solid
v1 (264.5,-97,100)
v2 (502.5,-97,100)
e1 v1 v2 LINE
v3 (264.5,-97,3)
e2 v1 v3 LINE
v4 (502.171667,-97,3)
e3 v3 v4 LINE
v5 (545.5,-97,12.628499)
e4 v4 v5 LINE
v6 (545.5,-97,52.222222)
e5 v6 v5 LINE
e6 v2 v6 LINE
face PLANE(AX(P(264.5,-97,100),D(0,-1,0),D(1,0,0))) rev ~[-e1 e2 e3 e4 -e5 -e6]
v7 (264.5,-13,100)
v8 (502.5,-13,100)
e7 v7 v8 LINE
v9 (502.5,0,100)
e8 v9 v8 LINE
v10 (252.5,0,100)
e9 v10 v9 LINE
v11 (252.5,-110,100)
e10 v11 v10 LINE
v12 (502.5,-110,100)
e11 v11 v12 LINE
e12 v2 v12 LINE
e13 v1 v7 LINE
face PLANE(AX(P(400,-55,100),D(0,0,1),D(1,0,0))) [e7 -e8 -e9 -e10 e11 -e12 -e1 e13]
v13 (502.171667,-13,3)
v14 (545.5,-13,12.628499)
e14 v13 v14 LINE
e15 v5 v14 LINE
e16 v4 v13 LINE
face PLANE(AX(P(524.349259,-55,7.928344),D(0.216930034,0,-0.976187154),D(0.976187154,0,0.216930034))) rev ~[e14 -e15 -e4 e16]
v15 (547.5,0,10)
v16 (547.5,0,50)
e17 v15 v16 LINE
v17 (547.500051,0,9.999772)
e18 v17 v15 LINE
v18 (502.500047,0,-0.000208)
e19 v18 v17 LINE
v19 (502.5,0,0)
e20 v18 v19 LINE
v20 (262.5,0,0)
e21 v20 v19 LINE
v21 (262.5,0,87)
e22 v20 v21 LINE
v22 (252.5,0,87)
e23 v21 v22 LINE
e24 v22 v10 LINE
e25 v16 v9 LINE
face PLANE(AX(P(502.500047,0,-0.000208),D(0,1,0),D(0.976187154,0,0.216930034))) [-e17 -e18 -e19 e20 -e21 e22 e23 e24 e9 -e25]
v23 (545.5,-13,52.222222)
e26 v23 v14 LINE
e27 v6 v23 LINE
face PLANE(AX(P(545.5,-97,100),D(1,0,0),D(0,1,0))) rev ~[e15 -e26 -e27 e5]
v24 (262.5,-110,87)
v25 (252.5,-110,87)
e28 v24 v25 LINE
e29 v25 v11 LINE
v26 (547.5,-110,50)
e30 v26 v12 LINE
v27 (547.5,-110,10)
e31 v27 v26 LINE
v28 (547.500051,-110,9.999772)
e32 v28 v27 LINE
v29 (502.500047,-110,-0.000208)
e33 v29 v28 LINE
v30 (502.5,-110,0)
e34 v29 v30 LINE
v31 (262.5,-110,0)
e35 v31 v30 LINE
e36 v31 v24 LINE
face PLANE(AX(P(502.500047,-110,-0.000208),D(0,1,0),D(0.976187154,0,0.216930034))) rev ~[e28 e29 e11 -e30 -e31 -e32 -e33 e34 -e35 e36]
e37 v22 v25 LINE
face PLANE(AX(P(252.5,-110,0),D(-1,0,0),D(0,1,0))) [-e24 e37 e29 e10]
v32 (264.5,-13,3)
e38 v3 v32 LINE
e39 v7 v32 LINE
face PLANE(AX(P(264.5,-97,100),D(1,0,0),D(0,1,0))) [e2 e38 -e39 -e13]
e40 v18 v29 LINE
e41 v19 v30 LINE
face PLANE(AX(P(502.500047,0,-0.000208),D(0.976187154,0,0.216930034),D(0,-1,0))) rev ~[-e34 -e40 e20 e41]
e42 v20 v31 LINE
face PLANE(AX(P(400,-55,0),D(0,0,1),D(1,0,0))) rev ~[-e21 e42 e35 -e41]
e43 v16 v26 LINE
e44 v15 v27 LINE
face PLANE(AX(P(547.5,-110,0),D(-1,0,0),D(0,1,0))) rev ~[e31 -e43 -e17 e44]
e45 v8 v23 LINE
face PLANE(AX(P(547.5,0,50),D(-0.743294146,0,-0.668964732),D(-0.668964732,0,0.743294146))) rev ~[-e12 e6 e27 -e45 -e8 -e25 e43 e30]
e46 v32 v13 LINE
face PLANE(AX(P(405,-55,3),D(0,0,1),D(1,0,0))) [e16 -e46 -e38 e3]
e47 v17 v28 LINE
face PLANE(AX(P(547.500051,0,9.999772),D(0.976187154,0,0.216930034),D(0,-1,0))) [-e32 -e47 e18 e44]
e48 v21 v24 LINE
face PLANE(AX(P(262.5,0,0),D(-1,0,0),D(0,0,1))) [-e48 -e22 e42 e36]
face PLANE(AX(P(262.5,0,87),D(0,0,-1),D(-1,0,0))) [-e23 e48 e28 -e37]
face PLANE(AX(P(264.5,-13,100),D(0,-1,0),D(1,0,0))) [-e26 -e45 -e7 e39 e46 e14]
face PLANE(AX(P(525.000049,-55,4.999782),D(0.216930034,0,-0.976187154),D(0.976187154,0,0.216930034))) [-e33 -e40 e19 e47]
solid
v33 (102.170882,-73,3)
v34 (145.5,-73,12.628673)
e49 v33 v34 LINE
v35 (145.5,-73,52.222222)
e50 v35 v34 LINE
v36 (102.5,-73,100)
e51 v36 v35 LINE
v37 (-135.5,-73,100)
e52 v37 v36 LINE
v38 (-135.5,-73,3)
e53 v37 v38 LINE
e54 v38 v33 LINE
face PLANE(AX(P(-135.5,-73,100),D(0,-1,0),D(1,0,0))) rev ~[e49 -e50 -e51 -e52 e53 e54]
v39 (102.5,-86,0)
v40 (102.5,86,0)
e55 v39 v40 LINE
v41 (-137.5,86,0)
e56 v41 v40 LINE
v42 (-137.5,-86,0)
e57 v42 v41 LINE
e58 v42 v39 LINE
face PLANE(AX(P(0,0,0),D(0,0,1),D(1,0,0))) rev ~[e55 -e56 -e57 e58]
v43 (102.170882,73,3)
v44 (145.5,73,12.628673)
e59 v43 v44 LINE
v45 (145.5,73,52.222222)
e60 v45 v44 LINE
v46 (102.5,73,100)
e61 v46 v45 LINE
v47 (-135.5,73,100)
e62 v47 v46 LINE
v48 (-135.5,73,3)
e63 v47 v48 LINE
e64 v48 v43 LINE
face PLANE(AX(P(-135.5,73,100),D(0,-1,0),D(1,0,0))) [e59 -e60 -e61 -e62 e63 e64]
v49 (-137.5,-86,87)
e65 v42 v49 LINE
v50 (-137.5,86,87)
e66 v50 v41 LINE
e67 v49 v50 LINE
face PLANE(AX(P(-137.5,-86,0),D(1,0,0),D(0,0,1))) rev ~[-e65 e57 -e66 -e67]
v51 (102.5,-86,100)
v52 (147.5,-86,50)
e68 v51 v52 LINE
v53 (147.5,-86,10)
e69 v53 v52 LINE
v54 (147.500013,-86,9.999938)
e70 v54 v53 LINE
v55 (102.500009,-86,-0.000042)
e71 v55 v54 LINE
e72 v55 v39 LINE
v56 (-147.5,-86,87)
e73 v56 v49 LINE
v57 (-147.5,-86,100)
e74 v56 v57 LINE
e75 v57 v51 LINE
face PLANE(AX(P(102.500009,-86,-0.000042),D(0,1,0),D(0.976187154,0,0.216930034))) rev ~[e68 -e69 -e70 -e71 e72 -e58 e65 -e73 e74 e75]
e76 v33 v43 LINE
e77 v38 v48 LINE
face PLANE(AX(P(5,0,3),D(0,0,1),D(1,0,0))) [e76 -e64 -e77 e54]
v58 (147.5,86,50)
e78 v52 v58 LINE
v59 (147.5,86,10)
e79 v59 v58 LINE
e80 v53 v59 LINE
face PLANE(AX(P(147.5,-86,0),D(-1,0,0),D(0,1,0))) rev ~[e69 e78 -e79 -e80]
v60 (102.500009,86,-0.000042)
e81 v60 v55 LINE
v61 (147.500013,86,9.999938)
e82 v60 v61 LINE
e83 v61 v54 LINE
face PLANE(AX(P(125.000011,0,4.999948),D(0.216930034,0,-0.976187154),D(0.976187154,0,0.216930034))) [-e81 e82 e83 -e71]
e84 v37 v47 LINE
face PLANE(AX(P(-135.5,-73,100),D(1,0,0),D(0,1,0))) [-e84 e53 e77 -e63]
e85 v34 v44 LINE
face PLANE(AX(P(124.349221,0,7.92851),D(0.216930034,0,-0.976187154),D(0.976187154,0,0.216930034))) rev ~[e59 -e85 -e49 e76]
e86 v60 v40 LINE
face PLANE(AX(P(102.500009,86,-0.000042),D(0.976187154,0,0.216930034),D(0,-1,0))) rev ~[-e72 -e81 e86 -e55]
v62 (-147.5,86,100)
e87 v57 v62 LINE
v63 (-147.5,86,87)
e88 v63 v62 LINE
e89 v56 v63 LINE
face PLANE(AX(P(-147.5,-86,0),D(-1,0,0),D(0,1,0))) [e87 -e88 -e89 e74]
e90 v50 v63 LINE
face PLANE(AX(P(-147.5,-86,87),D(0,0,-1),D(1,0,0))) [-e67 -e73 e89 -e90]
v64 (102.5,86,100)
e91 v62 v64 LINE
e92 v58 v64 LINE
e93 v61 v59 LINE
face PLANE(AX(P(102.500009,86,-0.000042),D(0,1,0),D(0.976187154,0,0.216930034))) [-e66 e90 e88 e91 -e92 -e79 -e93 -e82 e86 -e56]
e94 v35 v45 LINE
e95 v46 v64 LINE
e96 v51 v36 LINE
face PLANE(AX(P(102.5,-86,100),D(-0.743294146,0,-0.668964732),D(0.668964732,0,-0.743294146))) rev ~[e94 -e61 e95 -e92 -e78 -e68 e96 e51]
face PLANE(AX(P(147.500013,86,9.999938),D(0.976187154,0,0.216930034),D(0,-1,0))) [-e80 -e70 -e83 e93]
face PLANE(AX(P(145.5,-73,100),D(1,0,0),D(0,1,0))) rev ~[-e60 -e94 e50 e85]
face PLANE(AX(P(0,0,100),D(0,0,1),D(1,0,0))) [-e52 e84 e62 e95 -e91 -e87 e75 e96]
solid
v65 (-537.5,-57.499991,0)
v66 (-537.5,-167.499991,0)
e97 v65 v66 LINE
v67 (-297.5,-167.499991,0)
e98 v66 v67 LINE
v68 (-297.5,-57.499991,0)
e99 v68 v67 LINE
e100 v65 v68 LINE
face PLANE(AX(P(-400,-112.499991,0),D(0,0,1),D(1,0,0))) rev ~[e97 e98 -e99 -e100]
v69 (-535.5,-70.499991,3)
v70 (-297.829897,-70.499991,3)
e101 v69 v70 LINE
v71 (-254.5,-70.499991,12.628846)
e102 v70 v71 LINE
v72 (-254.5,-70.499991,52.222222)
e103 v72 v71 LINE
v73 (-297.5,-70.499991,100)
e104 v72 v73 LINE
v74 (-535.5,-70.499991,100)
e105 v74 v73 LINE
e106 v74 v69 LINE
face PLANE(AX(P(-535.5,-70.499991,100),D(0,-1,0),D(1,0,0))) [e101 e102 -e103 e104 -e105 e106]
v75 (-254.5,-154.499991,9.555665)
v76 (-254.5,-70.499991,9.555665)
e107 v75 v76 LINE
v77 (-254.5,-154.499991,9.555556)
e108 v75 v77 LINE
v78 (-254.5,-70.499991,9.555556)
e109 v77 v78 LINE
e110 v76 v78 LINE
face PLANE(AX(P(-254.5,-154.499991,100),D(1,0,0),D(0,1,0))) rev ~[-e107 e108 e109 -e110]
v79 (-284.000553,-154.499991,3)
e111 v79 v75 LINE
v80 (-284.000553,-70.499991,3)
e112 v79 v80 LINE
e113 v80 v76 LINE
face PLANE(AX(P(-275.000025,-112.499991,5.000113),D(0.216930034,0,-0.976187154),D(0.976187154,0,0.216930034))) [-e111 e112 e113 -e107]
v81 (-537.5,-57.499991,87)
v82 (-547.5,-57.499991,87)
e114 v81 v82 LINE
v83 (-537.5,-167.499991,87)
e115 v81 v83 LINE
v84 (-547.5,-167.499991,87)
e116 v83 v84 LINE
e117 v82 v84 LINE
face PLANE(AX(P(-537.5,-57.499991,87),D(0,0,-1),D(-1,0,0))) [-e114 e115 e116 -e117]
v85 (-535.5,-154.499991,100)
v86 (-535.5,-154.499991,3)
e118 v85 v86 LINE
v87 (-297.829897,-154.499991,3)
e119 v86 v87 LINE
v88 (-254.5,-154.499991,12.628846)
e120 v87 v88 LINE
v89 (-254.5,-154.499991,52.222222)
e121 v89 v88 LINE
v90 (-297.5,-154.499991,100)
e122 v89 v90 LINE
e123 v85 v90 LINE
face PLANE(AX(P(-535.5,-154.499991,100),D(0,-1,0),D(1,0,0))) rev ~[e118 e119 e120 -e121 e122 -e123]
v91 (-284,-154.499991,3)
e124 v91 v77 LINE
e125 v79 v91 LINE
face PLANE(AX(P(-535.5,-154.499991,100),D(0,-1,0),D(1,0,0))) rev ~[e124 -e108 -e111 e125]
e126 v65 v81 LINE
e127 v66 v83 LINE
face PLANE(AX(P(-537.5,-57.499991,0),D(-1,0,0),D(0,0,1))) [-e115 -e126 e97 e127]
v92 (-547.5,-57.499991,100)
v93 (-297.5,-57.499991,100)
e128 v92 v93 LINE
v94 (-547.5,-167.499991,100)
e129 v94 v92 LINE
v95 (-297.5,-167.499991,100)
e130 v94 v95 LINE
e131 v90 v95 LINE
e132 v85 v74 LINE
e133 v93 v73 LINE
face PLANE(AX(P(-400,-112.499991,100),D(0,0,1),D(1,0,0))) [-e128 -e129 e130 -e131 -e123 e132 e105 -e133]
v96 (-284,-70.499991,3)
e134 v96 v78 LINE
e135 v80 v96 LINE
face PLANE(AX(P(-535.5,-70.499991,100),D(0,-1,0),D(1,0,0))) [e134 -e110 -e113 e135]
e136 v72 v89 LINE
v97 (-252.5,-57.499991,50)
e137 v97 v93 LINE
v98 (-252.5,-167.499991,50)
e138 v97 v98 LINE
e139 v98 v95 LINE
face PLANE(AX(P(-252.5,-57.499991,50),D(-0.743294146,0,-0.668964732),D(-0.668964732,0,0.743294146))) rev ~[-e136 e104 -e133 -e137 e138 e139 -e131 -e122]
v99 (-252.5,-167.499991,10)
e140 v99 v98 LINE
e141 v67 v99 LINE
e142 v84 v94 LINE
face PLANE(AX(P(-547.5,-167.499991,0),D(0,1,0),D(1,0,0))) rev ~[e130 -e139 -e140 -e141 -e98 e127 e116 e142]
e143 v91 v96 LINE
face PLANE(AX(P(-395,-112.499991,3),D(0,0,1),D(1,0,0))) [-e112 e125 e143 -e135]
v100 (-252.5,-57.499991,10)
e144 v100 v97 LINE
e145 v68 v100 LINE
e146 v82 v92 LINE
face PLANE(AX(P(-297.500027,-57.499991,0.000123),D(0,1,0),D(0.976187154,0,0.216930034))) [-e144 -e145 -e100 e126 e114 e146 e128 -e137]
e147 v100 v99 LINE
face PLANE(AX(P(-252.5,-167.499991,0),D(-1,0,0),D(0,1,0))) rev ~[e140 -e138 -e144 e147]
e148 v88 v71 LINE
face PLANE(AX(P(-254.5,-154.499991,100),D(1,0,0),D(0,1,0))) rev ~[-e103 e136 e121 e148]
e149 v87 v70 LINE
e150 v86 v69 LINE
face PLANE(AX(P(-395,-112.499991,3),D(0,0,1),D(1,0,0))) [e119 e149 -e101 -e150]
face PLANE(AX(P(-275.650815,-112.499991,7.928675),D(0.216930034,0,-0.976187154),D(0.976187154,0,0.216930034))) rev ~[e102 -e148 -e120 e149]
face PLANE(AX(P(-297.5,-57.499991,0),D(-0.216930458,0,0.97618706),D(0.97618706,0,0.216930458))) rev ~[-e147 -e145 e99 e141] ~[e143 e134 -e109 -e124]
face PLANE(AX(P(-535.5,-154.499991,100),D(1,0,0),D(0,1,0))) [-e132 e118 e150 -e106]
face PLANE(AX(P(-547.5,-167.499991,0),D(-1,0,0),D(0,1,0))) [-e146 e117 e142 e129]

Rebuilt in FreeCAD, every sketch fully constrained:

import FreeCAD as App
import Part
import Sketcher
Q = App.Units.Quantity

doc = App.newDocument("Part")
body = doc.addObject("PartDesign::Body", "Body")

sketch1 = body.newObject("Sketcher::SketchObject", "Sketch")
sketch1.AttachmentSupport = (doc.getObject("XY_Plane"), [""])
sketch1.MapMode = "FlatFace"
sketch1.addGeometry(Part.LineSegment(App.Vector(-148, 86, 0), App.Vector(-148, -86, 0)), False)
sketch1.addGeometry(Part.LineSegment(App.Vector(-148, -86, 0), App.Vector(148, -86, 0)), False)
sketch1.addGeometry(Part.LineSegment(App.Vector(148, -86, 0), App.Vector(148, 86, 0)), False)
sketch1.addGeometry(Part.LineSegment(App.Vector(148, 86, 0), App.Vector(-148, 86, 0)), False)
sketch1.addConstraint(Sketcher.Constraint("Coincident", 0, 2, 1, 1))
sketch1.addConstraint(Sketcher.Constraint("Coincident", 1, 2, 2, 1))
sketch1.addConstraint(Sketcher.Constraint("Coincident", 2, 2, 3, 1))
sketch1.addConstraint(Sketcher.Constraint("Coincident", 3, 2, 0, 1))
sketch1.addConstraint(Sketcher.Constraint("Vertical", 0))
sketch1.addConstraint(Sketcher.Constraint("Horizontal", 1))
sketch1.addConstraint(Sketcher.Constraint("Vertical", 2))
sketch1.addConstraint(Sketcher.Constraint("Horizontal", 3))
sketch1.addConstraint(Sketcher.Constraint("Symmetric", 0, 2, 2, 2, -1, 1))
sketch1.addConstraint(Sketcher.Constraint("DistanceX", 1, 1, 1, 2, Q("295 mm")))
sketch1.addConstraint(Sketcher.Constraint("DistanceY", 0, 2, 0, 1, Q("172 mm")))
pad1 = body.newObject("PartDesign::Pad", "Pad")
pad1.Profile = sketch1
pad1.Length = 100

sketch2 = body.newObject("Sketcher::SketchObject", "Sketch001")
sketch2.AttachmentSupport = (doc.getObject("XY_Plane"), [""])
sketch2.MapMode = "FlatFace"
sketch2.AttachmentOffset = App.Placement(App.Vector(0, 0, 100), App.Rotation())
sketch2.addGeometry(Part.LineSegment(App.Vector(-136, 73, 0), App.Vector(-136, -73, 0)), False)
sketch2.addGeometry(Part.LineSegment(App.Vector(-136, -73, 0), App.Vector(146, -73, 0)), False)
sketch2.addGeometry(Part.LineSegment(App.Vector(146, -73, 0), App.Vector(146, 73, 0)), False)
sketch2.addGeometry(Part.LineSegment(App.Vector(146, 73, 0), App.Vector(-136, 73, 0)), False)
sketch2.addConstraint(Sketcher.Constraint("Coincident", 0, 2, 1, 1))
sketch2.addConstraint(Sketcher.Constraint("Coincident", 1, 2, 2, 1))
sketch2.addConstraint(Sketcher.Constraint("Coincident", 2, 2, 3, 1))
sketch2.addConstraint(Sketcher.Constraint("Coincident", 3, 2, 0, 1))
sketch2.addConstraint(Sketcher.Constraint("Vertical", 0))
sketch2.addConstraint(Sketcher.Constraint("Horizontal", 1))
sketch2.addConstraint(Sketcher.Constraint("Vertical", 2))
sketch2.addConstraint(Sketcher.Constraint("Horizontal", 3))
sketch2.addConstraint(Sketcher.Constraint("DistanceX", 1, 1, 1, 2, Q("281 mm")))
sketch2.addConstraint(Sketcher.Constraint("DistanceY", 0, 2, 0, 1, Q("146 mm")))
sketch2.addConstraint(Sketcher.Constraint("DistanceY", 0, 2, -1, 1, Q("73 mm")))
sketch2.addConstraint(Sketcher.Constraint("DistanceX", 0, 2, -1, 1, Q("135.5 mm")))
pocket1 = body.newObject("PartDesign::Pocket", "Pocket")
pocket1.Profile = sketch2
pocket1.Length = 97

sketch3 = body.newObject("Sketcher::SketchObject", "Sketch002")
sketch3.AttachmentSupport = (doc.getObject("XZ_Plane"), [""])
sketch3.MapMode = "FlatFace"
sketch3.AttachmentOffset = App.Placement(App.Vector(0, 0, 86), App.Rotation())
sketch3.addGeometry(Part.LineSegment(App.Vector(-148, 87, 0), App.Vector(-148, 0, 0)), False)
sketch3.addGeometry(Part.LineSegment(App.Vector(-148, 0, 0), App.Vector(-138, 0, 0)), False)
sketch3.addGeometry(Part.LineSegment(App.Vector(-138, 0, 0), App.Vector(-138, 87, 0)), False)
sketch3.addGeometry(Part.LineSegment(App.Vector(-138, 87, 0), App.Vector(-148, 87, 0)), False)
sketch3.addGeometry(Part.LineSegment(App.Vector(102, 100, 0), App.Vector(148, 50, 0)), False)
sketch3.addGeometry(Part.LineSegment(App.Vector(148, 50, 0), App.Vector(148, 100, 0)), False)
sketch3.addGeometry(Part.LineSegment(App.Vector(148, 100, 0), App.Vector(102, 100, 0)), False)
sketch3.addGeometry(Part.LineSegment(App.Vector(148, 0, 0), App.Vector(148, 10, 0)), False)
sketch3.addGeometry(Part.LineSegment(App.Vector(148, 10, 0), App.Vector(102, 0, 0)), False)
sketch3.addGeometry(Part.LineSegment(App.Vector(102, 0, 0), App.Vector(148, 0, 0)), False)
sketch3.addConstraint(Sketcher.Constraint("Coincident", 0, 2, 1, 1))
sketch3.addConstraint(Sketcher.Constraint("Coincident", 1, 2, 2, 1))
sketch3.addConstraint(Sketcher.Constraint("Coincident", 2, 2, 3, 1))
sketch3.addConstraint(Sketcher.Constraint("Coincident", 3, 2, 0, 1))
sketch3.addConstraint(Sketcher.Constraint("Coincident", 4, 2, 5, 1))
sketch3.addConstraint(Sketcher.Constraint("Coincident", 5, 2, 6, 1))
sketch3.addConstraint(Sketcher.Constraint("Coincident", 6, 2, 4, 1))
sketch3.addConstraint(Sketcher.Constraint("Coincident", 7, 2, 8, 1))
sketch3.addConstraint(Sketcher.Constraint("Coincident", 8, 2, 9, 1))
sketch3.addConstraint(Sketcher.Constraint("Coincident", 9, 2, 7, 1))
sketch3.addConstraint(Sketcher.Constraint("Vertical", 0))
sketch3.addConstraint(Sketcher.Constraint("Horizontal", 1))
sketch3.addConstraint(Sketcher.Constraint("Vertical", 2))
sketch3.addConstraint(Sketcher.Constraint("Horizontal", 3))
sketch3.addConstraint(Sketcher.Constraint("Vertical", 5))
sketch3.addConstraint(Sketcher.Constraint("Horizontal", 6))
sketch3.addConstraint(Sketcher.Constraint("Vertical", 7))
sketch3.addConstraint(Sketcher.Constraint("Horizontal", 9))
sketch3.addConstraint(Sketcher.Constraint("Symmetric", 0, 2, 9, 2, -1, 1))
sketch3.addConstraint(Sketcher.Constraint("PointOnObject", 0, 2, -1))
sketch3.addConstraint(Sketcher.Constraint("Vertical", 5, 2, 7, 2))
sketch3.addConstraint(Sketcher.Constraint("Vertical", 6, 2, 8, 2))
sketch3.addConstraint(Sketcher.Constraint("Equal", 3, 7))
sketch3.addConstraint(Sketcher.Constraint("DistanceX", 1, 1, 1, 2, Q("10 mm")))
sketch3.addConstraint(Sketcher.Constraint("DistanceX", 6, 2, 6, 1, Q("45 mm")))
sketch3.addConstraint(Sketcher.Constraint("DistanceY", 0, 2, 0, 1, Q("87 mm")))
sketch3.addConstraint(Sketcher.Constraint("DistanceY", 5, 1, 5, 2, Q("50 mm")))
sketch3.addConstraint(Sketcher.Constraint("DistanceY", -1, 1, 4, 2, Q("50 mm")))
sketch3.addConstraint(Sketcher.Constraint("DistanceX", 2, 2, 4, 2, Q("285 mm")))
pocket2 = body.newObject("PartDesign::Pocket", "Pocket001")
pocket2.Profile = sketch3
pocket2.Type = "ThroughAll"

sketch4 = body.newObject("Sketcher::SketchObject", "Sketch003")
sketch4.Placement = App.Placement(App.Vector(4.823529, 0, -21.705882), App.Rotation(App.Vector(0.976187154, 0, 0.216930034), App.Vector(0, -0.999999999, 0), App.Vector(0.216930034, 0, -0.976187154), "ZXY"))
sketch4.addGeometry(Part.LineSegment(App.Vector(100, 86, 0), App.Vector(100, -86, 0)), False)
sketch4.addGeometry(Part.LineSegment(App.Vector(100, -86, 0), App.Vector(146, -86, 0)), False)
sketch4.addGeometry(Part.LineSegment(App.Vector(146, -86, 0), App.Vector(146, 86, 0)), False)
sketch4.addGeometry(Part.LineSegment(App.Vector(146, 86, 0), App.Vector(100, 86, 0)), False)
sketch4.addConstraint(Sketcher.Constraint("Coincident", 0, 2, 1, 1))
sketch4.addConstraint(Sketcher.Constraint("Coincident", 1, 2, 2, 1))
sketch4.addConstraint(Sketcher.Constraint("Coincident", 2, 2, 3, 1))
sketch4.addConstraint(Sketcher.Constraint("Coincident", 3, 2, 0, 1))
sketch4.addConstraint(Sketcher.Constraint("Vertical", 0))
sketch4.addConstraint(Sketcher.Constraint("Horizontal", 1))
sketch4.addConstraint(Sketcher.Constraint("Vertical", 2))
sketch4.addConstraint(Sketcher.Constraint("Horizontal", 3))
sketch4.addConstraint(Sketcher.Constraint("DistanceY", 0, 2, 0, 1, Q("172 mm")))
sketch4.addConstraint(Sketcher.Constraint("DistanceY", 0, 2, -1, 1, Q("86 mm")))
sketch4.addConstraint(Sketcher.Constraint("DistanceX", 1, 1, 1, 2, Q("46.097722 mm")))
sketch4.addConstraint(Sketcher.Constraint("DistanceX", -1, 1, 0, 2, Q("100.059174 mm")))
pad2 = body.newObject("PartDesign::Pad", "Pad001")
pad2.Profile = sketch4
pad2.Length = 3
pad2.Reversed = True
body2 = doc.addObject("PartDesign::Body", "Body001")
body2.AllowCompound = True

sketch5 = body2.newObject("Sketcher::SketchObject", "Sketch004")
sketch5.AttachmentSupport = (doc.getObject("XY_Plane001"), [""])
sketch5.MapMode = "FlatFace"
sketch5.addGeometry(Part.LineSegment(App.Vector(252, 0, 0), App.Vector(252, -110, 0)), False)
sketch5.addGeometry(Part.LineSegment(App.Vector(252, -110, 0), App.Vector(548, -110, 0)), False)
sketch5.addGeometry(Part.LineSegment(App.Vector(548, -110, 0), App.Vector(548, 0, 0)), False)
sketch5.addGeometry(Part.LineSegment(App.Vector(548, 0, 0), App.Vector(252, 0, 0)), False)
sketch5.addGeometry(Part.LineSegment(App.Vector(-548, -57, 0), App.Vector(-548, -167, 0)), False)
sketch5.addGeometry(Part.LineSegment(App.Vector(-548, -167, 0), App.Vector(-252, -167, 0)), False)
sketch5.addGeometry(Part.LineSegment(App.Vector(-252, -167, 0), App.Vector(-252, -57, 0)), False)
sketch5.addGeometry(Part.LineSegment(App.Vector(-252, -57, 0), App.Vector(-548, -57, 0)), False)
sketch5.addConstraint(Sketcher.Constraint("Coincident", 0, 2, 1, 1))
sketch5.addConstraint(Sketcher.Constraint("Coincident", 1, 2, 2, 1))
sketch5.addConstraint(Sketcher.Constraint("Coincident", 2, 2, 3, 1))
sketch5.addConstraint(Sketcher.Constraint("Coincident", 3, 2, 0, 1))
sketch5.addConstraint(Sketcher.Constraint("Coincident", 4, 2, 5, 1))
sketch5.addConstraint(Sketcher.Constraint("Coincident", 5, 2, 6, 1))
sketch5.addConstraint(Sketcher.Constraint("Coincident", 6, 2, 7, 1))
sketch5.addConstraint(Sketcher.Constraint("Coincident", 7, 2, 4, 1))
sketch5.addConstraint(Sketcher.Constraint("Vertical", 0))
sketch5.addConstraint(Sketcher.Constraint("Horizontal", 1))
sketch5.addConstraint(Sketcher.Constraint("Vertical", 2))
sketch5.addConstraint(Sketcher.Constraint("Horizontal", 3))
sketch5.addConstraint(Sketcher.Constraint("Vertical", 4))
sketch5.addConstraint(Sketcher.Constraint("Horizontal", 5))
sketch5.addConstraint(Sketcher.Constraint("Vertical", 6))
sketch5.addConstraint(Sketcher.Constraint("Horizontal", 7))
sketch5.addConstraint(Sketcher.Constraint("PointOnObject", 2, 2, -1))
sketch5.addConstraint(Sketcher.Constraint("Equal", 3, 5))
sketch5.addConstraint(Sketcher.Constraint("Equal", 2, 4))
sketch5.addConstraint(Sketcher.Constraint("DistanceX", 1, 1, 1, 2, Q("295 mm")))
sketch5.addConstraint(Sketcher.Constraint("DistanceY", 0, 2, 0, 1, Q("110 mm")))
sketch5.addConstraint(Sketcher.Constraint("DistanceX", 4, 2, 0, 2, Q("800 mm")))
sketch5.addConstraint(Sketcher.Constraint("DistanceX", -1, 1, 0, 2, Q("252.5 mm")))
sketch5.addConstraint(Sketcher.Constraint("DistanceY", 4, 2, -1, 1, Q("167.499991 mm")))
pad3 = body2.newObject("PartDesign::Pad", "Pad002")
pad3.Profile = sketch5
pad3.Length = 100

sketch6 = body2.newObject("Sketcher::SketchObject", "Sketch005")
sketch6.AttachmentSupport = (doc.getObject("XY_Plane001"), [""])
sketch6.MapMode = "FlatFace"
sketch6.AttachmentOffset = App.Placement(App.Vector(0, 0, 100), App.Rotation())
sketch6.addGeometry(Part.LineSegment(App.Vector(264, -13, 0), App.Vector(264, -97, 0)), False)
sketch6.addGeometry(Part.LineSegment(App.Vector(264, -97, 0), App.Vector(546, -97, 0)), False)
sketch6.addGeometry(Part.LineSegment(App.Vector(546, -97, 0), App.Vector(546, -13, 0)), False)
sketch6.addGeometry(Part.LineSegment(App.Vector(546, -13, 0), App.Vector(264, -13, 0)), False)
sketch6.addConstraint(Sketcher.Constraint("Coincident", 0, 2, 1, 1))
sketch6.addConstraint(Sketcher.Constraint("Coincident", 1, 2, 2, 1))
sketch6.addConstraint(Sketcher.Constraint("Coincident", 2, 2, 3, 1))
sketch6.addConstraint(Sketcher.Constraint("Coincident", 3, 2, 0, 1))
sketch6.addConstraint(Sketcher.Constraint("Vertical", 0))
sketch6.addConstraint(Sketcher.Constraint("Horizontal", 1))
sketch6.addConstraint(Sketcher.Constraint("Vertical", 2))
sketch6.addConstraint(Sketcher.Constraint("Horizontal", 3))
sketch6.addConstraint(Sketcher.Constraint("DistanceX", 1, 1, 1, 2, Q("281 mm")))
sketch6.addConstraint(Sketcher.Constraint("DistanceY", 0, 2, 0, 1, Q("84 mm")))
sketch6.addConstraint(Sketcher.Constraint("DistanceY", 0, 2, -1, 1, Q("97 mm")))
sketch6.addConstraint(Sketcher.Constraint("DistanceX", -1, 1, 0, 2, Q("264.5 mm")))
pocket3 = body2.newObject("PartDesign::Pocket", "Pocket002")
pocket3.Profile = sketch6
pocket3.Length = 97

sketch7 = body2.newObject("Sketcher::SketchObject", "Sketch006")
sketch7.AttachmentSupport = (doc.getObject("XZ_Plane001"), [""])
sketch7.MapMode = "FlatFace"
sketch7.addGeometry(Part.LineSegment(App.Vector(548, 100, 0), App.Vector(548, 50, 0)), False)
sketch7.addGeometry(Part.LineSegment(App.Vector(548, 50, 0), App.Vector(502, 100, 0)), False)
sketch7.addGeometry(Part.LineSegment(App.Vector(502, 100, 0), App.Vector(548, 100, 0)), False)
sketch7.addGeometry(Part.LineSegment(App.Vector(502, 0, 0), App.Vector(548, 10, 0)), False)
sketch7.addGeometry(Part.LineSegment(App.Vector(548, 10, 0), App.Vector(548, 0, 0)), False)
sketch7.addGeometry(Part.LineSegment(App.Vector(548, 0, 0), App.Vector(502, 0, 0)), False)
sketch7.addGeometry(Part.LineSegment(App.Vector(262, 87, 0), App.Vector(262, 0, 0)), False)
sketch7.addGeometry(Part.LineSegment(App.Vector(262, 0, 0), App.Vector(252, 0, 0)), False)
sketch7.addGeometry(Part.LineSegment(App.Vector(252, 0, 0), App.Vector(252, 87, 0)), False)
sketch7.addGeometry(Part.LineSegment(App.Vector(252, 87, 0), App.Vector(262, 87, 0)), False)
sketch7.addConstraint(Sketcher.Constraint("Coincident", 0, 2, 1, 1))
sketch7.addConstraint(Sketcher.Constraint("Coincident", 1, 2, 2, 1))
sketch7.addConstraint(Sketcher.Constraint("Coincident", 2, 2, 0, 1))
sketch7.addConstraint(Sketcher.Constraint("Coincident", 3, 2, 4, 1))
sketch7.addConstraint(Sketcher.Constraint("Coincident", 4, 2, 5, 1))
sketch7.addConstraint(Sketcher.Constraint("Coincident", 5, 2, 3, 1))
sketch7.addConstraint(Sketcher.Constraint("Coincident", 6, 2, 7, 1))
sketch7.addConstraint(Sketcher.Constraint("Coincident", 7, 2, 8, 1))
sketch7.addConstraint(Sketcher.Constraint("Coincident", 8, 2, 9, 1))
sketch7.addConstraint(Sketcher.Constraint("Coincident", 9, 2, 6, 1))
sketch7.addConstraint(Sketcher.Constraint("Vertical", 0))
sketch7.addConstraint(Sketcher.Constraint("Horizontal", 2))
sketch7.addConstraint(Sketcher.Constraint("Vertical", 4))
sketch7.addConstraint(Sketcher.Constraint("Horizontal", 5))
sketch7.addConstraint(Sketcher.Constraint("Vertical", 6))
sketch7.addConstraint(Sketcher.Constraint("Horizontal", 7))
sketch7.addConstraint(Sketcher.Constraint("Vertical", 8))
sketch7.addConstraint(Sketcher.Constraint("Horizontal", 9))
sketch7.addConstraint(Sketcher.Constraint("PointOnObject", 4, 2, -1))
sketch7.addConstraint(Sketcher.Constraint("PointOnObject", 6, 2, -1))
sketch7.addConstraint(Sketcher.Constraint("Vertical", 2, 2, 3, 2))
sketch7.addConstraint(Sketcher.Constraint("Vertical", 1, 2, 5, 2))
sketch7.addConstraint(Sketcher.Constraint("Equal", 9, 4))
sketch7.addConstraint(Sketcher.Constraint("DistanceX", 2, 1, 2, 2, Q("45 mm")))
sketch7.addConstraint(Sketcher.Constraint("DistanceX", 7, 2, 7, 1, Q("10 mm")))
sketch7.addConstraint(Sketcher.Constraint("DistanceY", 0, 2, 0, 1, Q("50 mm")))
sketch7.addConstraint(Sketcher.Constraint("DistanceY", 6, 2, 6, 1, Q("87 mm")))
sketch7.addConstraint(Sketcher.Constraint("DistanceY", -1, 1, 0, 2, Q("50 mm")))
sketch7.addConstraint(Sketcher.Constraint("DistanceX", 6, 2, 5, 2, Q("240 mm")))
sketch7.addConstraint(Sketcher.Constraint("DistanceX", -1, 1, 0, 2, Q("547.5 mm")))
pocket4 = body2.newObject("PartDesign::Pocket", "Pocket003")
pocket4.Profile = sketch7
pocket4.Type = "ThroughAll"
pocket4.Reversed = True

sketch8 = body2.newObject("Sketcher::SketchObject", "Sketch007")
sketch8.AttachmentSupport = (doc.getObject("XZ_Plane001"), [""])
sketch8.MapMode = "FlatFace"
sketch8.AttachmentOffset = App.Placement(App.Vector(0, 0, 57.499991), App.Rotation())
sketch8.addGeometry(Part.LineSegment(App.Vector(-252, 50, 0), App.Vector(-298, 100, 0)), False)
sketch8.addGeometry(Part.LineSegment(App.Vector(-298, 100, 0), App.Vector(-252, 100, 0)), False)
sketch8.addGeometry(Part.LineSegment(App.Vector(-252, 100, 0), App.Vector(-252, 50, 0)), False)
sketch8.addGeometry(Part.LineSegment(App.Vector(-298, 0, 0), App.Vector(-252, 10, 0)), False)
sketch8.addGeometry(Part.LineSegment(App.Vector(-252, 10, 0), App.Vector(-252, 0, 0)), False)
sketch8.addGeometry(Part.LineSegment(App.Vector(-252, 0, 0), App.Vector(-298, 0, 0)), False)
sketch8.addGeometry(Part.LineSegment(App.Vector(-538, 87, 0), App.Vector(-538, 0, 0)), False)
sketch8.addGeometry(Part.LineSegment(App.Vector(-538, 0, 0), App.Vector(-548, 0, 0)), False)
sketch8.addGeometry(Part.LineSegment(App.Vector(-548, 0, 0), App.Vector(-548, 87, 0)), False)
sketch8.addGeometry(Part.LineSegment(App.Vector(-548, 87, 0), App.Vector(-538, 87, 0)), False)
sketch8.addConstraint(Sketcher.Constraint("Coincident", 0, 2, 1, 1))
sketch8.addConstraint(Sketcher.Constraint("Coincident", 1, 2, 2, 1))
sketch8.addConstraint(Sketcher.Constraint("Coincident", 2, 2, 0, 1))
sketch8.addConstraint(Sketcher.Constraint("Coincident", 3, 2, 4, 1))
sketch8.addConstraint(Sketcher.Constraint("Coincident", 4, 2, 5, 1))
sketch8.addConstraint(Sketcher.Constraint("Coincident", 5, 2, 3, 1))
sketch8.addConstraint(Sketcher.Constraint("Coincident", 6, 2, 7, 1))
sketch8.addConstraint(Sketcher.Constraint("Coincident", 7, 2, 8, 1))
sketch8.addConstraint(Sketcher.Constraint("Coincident", 8, 2, 9, 1))
sketch8.addConstraint(Sketcher.Constraint("Coincident", 9, 2, 6, 1))
sketch8.addConstraint(Sketcher.Constraint("Horizontal", 1))
sketch8.addConstraint(Sketcher.Constraint("Vertical", 2))
sketch8.addConstraint(Sketcher.Constraint("Vertical", 4))
sketch8.addConstraint(Sketcher.Constraint("Horizontal", 5))
sketch8.addConstraint(Sketcher.Constraint("Vertical", 6))
sketch8.addConstraint(Sketcher.Constraint("Horizontal", 7))
sketch8.addConstraint(Sketcher.Constraint("Vertical", 8))
sketch8.addConstraint(Sketcher.Constraint("Horizontal", 9))
sketch8.addConstraint(Sketcher.Constraint("PointOnObject", 4, 2, -1))
sketch8.addConstraint(Sketcher.Constraint("PointOnObject", 6, 2, -1))
sketch8.addConstraint(Sketcher.Constraint("Vertical", 2, 2, 3, 2))
sketch8.addConstraint(Sketcher.Constraint("Vertical", 0, 2, 5, 2))
sketch8.addConstraint(Sketcher.Constraint("Equal", 9, 4))
sketch8.addConstraint(Sketcher.Constraint("DistanceX", 1, 1, 1, 2, Q("45 mm")))
sketch8.addConstraint(Sketcher.Constraint("DistanceX", 7, 2, 7, 1, Q("10 mm")))
sketch8.addConstraint(Sketcher.Constraint("DistanceY", 2, 2, 2, 1, Q("50 mm")))
sketch8.addConstraint(Sketcher.Constraint("DistanceY", 6, 2, 6, 1, Q("87 mm")))
sketch8.addConstraint(Sketcher.Constraint("DistanceY", -1, 1, 0, 2, Q("100 mm")))
sketch8.addConstraint(Sketcher.Constraint("DistanceX", 6, 2, 5, 2, Q("240 mm")))
sketch8.addConstraint(Sketcher.Constraint("DistanceX", 0, 2, -1, 1, Q("297.5 mm")))
pocket5 = body2.newObject("PartDesign::Pocket", "Pocket004")
pocket5.Profile = sketch8
pocket5.Type = "ThroughAll"
pocket5.Reversed = True

sketch9 = body2.newObject("Sketcher::SketchObject", "Sketch008")
sketch9.AttachmentSupport = (doc.getObject("XY_Plane001"), [""])
sketch9.MapMode = "FlatFace"
sketch9.AttachmentOffset = App.Placement(App.Vector(0, 0, 100), App.Rotation())
sketch9.addGeometry(Part.LineSegment(App.Vector(-536, -70, 0), App.Vector(-536, -154, 0)), False)
sketch9.addGeometry(Part.LineSegment(App.Vector(-536, -154, 0), App.Vector(-254, -154, 0)), False)
sketch9.addGeometry(Part.LineSegment(App.Vector(-254, -154, 0), App.Vector(-254, -70, 0)), False)
sketch9.addGeometry(Part.LineSegment(App.Vector(-254, -70, 0), App.Vector(-536, -70, 0)), False)
sketch9.addConstraint(Sketcher.Constraint("Coincident", 0, 2, 1, 1))
sketch9.addConstraint(Sketcher.Constraint("Coincident", 1, 2, 2, 1))
sketch9.addConstraint(Sketcher.Constraint("Coincident", 2, 2, 3, 1))
sketch9.addConstraint(Sketcher.Constraint("Coincident", 3, 2, 0, 1))
sketch9.addConstraint(Sketcher.Constraint("Vertical", 0))
sketch9.addConstraint(Sketcher.Constraint("Horizontal", 1))
sketch9.addConstraint(Sketcher.Constraint("Vertical", 2))
sketch9.addConstraint(Sketcher.Constraint("Horizontal", 3))
sketch9.addConstraint(Sketcher.Constraint("DistanceX", 1, 1, 1, 2, Q("281 mm")))
sketch9.addConstraint(Sketcher.Constraint("DistanceY", 0, 2, 0, 1, Q("84 mm")))
sketch9.addConstraint(Sketcher.Constraint("DistanceX", 0, 2, -1, 1, Q("535.5 mm")))
sketch9.addConstraint(Sketcher.Constraint("DistanceY", 0, 2, -1, 1, Q("154.499991 mm")))
pocket6 = body2.newObject("PartDesign::Pocket", "Pocket005")
pocket6.Profile = sketch9
pocket6.Length = 97

sketch10 = body2.newObject("Sketcher::SketchObject", "Sketch009")
sketch10.Placement = App.Placement(App.Vector(23.647059, 0, -106.411765), App.Rotation(App.Vector(0.976187154, 0, 0.216930034), App.Vector(0, -0.999999999, 0), App.Vector(0.216930034, 0, -0.976187154), "ZXY"))
sketch10.addGeometry(Part.LineSegment(App.Vector(491, 110, 0), App.Vector(491, 0, 0)), False)
sketch10.addGeometry(Part.LineSegment(App.Vector(491, 0, 0), App.Vector(537, 0, 0)), False)
sketch10.addGeometry(Part.LineSegment(App.Vector(537, 0, 0), App.Vector(537, 110, 0)), False)
sketch10.addGeometry(Part.LineSegment(App.Vector(537, 110, 0), App.Vector(491, 110, 0)), False)
sketch10.addConstraint(Sketcher.Constraint("Coincident", 0, 2, 1, 1))
sketch10.addConstraint(Sketcher.Constraint("Coincident", 1, 2, 2, 1))
sketch10.addConstraint(Sketcher.Constraint("Coincident", 2, 2, 3, 1))
sketch10.addConstraint(Sketcher.Constraint("Coincident", 3, 2, 0, 1))
sketch10.addConstraint(Sketcher.Constraint("Vertical", 0))
sketch10.addConstraint(Sketcher.Constraint("Horizontal", 1))
sketch10.addConstraint(Sketcher.Constraint("Vertical", 2))
sketch10.addConstraint(Sketcher.Constraint("Horizontal", 3))
sketch10.addConstraint(Sketcher.Constraint("PointOnObject", 0, 2, -1))
sketch10.addConstraint(Sketcher.Constraint("DistanceY", 0, 2, 0, 1, Q("110 mm")))
sketch10.addConstraint(Sketcher.Constraint("DistanceX", 1, 1, 1, 2, Q("46.097722 mm")))
sketch10.addConstraint(Sketcher.Constraint("DistanceX", -1, 1, 1, 2, Q("536.63172 mm")))
pad4 = body2.newObject("PartDesign::Pad", "Pad003")
pad4.Profile = sketch10
pad4.Length = 3
pad4.Reversed = True

sketch11 = body2.newObject("Sketcher::SketchObject", "Sketch010")
sketch11.Placement = App.Placement(App.Vector(-14, 0, 63), App.Rotation(App.Vector(0.976187154, 0, 0.216930034), App.Vector(0, -0.999999999, 0), App.Vector(0.216930034, 0, -0.976187154), "ZXY"))
sketch11.addGeometry(Part.LineSegment(App.Vector(-290, 167, 0), App.Vector(-290, 57, 0)), False)
sketch11.addGeometry(Part.LineSegment(App.Vector(-290, 57, 0), App.Vector(-244, 57, 0)), False)
sketch11.addGeometry(Part.LineSegment(App.Vector(-244, 57, 0), App.Vector(-244, 167, 0)), False)
sketch11.addGeometry(Part.LineSegment(App.Vector(-244, 167, 0), App.Vector(-290, 167, 0)), False)
sketch11.addConstraint(Sketcher.Constraint("Coincident", 0, 2, 1, 1))
sketch11.addConstraint(Sketcher.Constraint("Coincident", 1, 2, 2, 1))
sketch11.addConstraint(Sketcher.Constraint("Coincident", 2, 2, 3, 1))
sketch11.addConstraint(Sketcher.Constraint("Coincident", 3, 2, 0, 1))
sketch11.addConstraint(Sketcher.Constraint("Vertical", 0))
sketch11.addConstraint(Sketcher.Constraint("Horizontal", 1))
sketch11.addConstraint(Sketcher.Constraint("Vertical", 2))
sketch11.addConstraint(Sketcher.Constraint("Horizontal", 3))
sketch11.addConstraint(Sketcher.Constraint("DistanceY", 0, 2, 0, 1, Q("110 mm")))
sketch11.addConstraint(Sketcher.Constraint("DistanceX", 1, 1, 1, 2, Q("46.097722 mm")))
sketch11.addConstraint(Sketcher.Constraint("DistanceX", 0, 2, -1, 1, Q("290.41565 mm")))
sketch11.addConstraint(Sketcher.Constraint("DistanceY", -1, 1, 0, 2, Q("57.499991 mm")))
pad5 = body2.newObject("PartDesign::Pad", "Pad004")
pad5.Profile = sketch11
pad5.Length = 3
pad5.Reversed = True

doc.recompute()
